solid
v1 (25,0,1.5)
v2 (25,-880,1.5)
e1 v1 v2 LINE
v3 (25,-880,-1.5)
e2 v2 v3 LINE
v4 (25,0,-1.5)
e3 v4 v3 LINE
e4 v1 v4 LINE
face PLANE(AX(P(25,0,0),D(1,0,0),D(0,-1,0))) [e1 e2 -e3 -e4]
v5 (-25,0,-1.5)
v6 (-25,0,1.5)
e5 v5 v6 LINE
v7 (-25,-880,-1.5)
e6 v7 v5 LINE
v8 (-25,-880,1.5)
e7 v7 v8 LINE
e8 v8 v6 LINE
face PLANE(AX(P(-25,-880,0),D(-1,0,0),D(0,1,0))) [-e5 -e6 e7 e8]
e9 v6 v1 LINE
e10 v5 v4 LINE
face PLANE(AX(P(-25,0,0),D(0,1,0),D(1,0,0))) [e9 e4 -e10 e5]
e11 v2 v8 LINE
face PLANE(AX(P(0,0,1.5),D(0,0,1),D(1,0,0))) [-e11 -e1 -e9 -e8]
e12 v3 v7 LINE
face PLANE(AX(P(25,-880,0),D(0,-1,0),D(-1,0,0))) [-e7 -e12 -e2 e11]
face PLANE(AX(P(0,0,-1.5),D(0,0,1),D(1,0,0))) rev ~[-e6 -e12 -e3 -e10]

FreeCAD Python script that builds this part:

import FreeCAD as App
import Part
import Sketcher
from FreeCAD import Vector
Q = App.Units.Quantity


def add_polygon(sketch, points):
    """Adds a closed chain of lines whose ends are joined by coincident constraints."""
    first, n = sketch.GeometryCount, len(points)
    for a, b in zip(points, points[1:] + points[:1]):
        sketch.addGeometry(Part.LineSegment(App.Vector(*a, 0), App.Vector(*b, 0)), False)
    for i in range(n):
        sketch.addConstraint(Sketcher.Constraint("Coincident", first + i, 2, first + (i + 1) % n, 1))

doc = App.newDocument("Part")
params = doc.addObject("Spreadsheet::Sheet", "Params")
for row, (alias, value) in enumerate([
    ("sketch1_width", "50 mm"),
    ("sketch1_height", "880 mm"),
    ("pad1_length", "3 mm"),
], start=1):
    params.set(f"A{row}", alias)
    params.set(f"B{row}", "=" + value)
    params.setAlias(f"B{row}", alias)

body = doc.addObject("PartDesign::Body", "Body")

# Sketch on XY plane
sketch1 = doc.addObject("Sketcher::SketchObject", "Sketch")
body.addObject(sketch1)
sketch1.AttachmentSupport = (doc.XY_Plane, [""])
sketch1.MapMode = "FlatFace"
add_polygon(sketch1, [(25, 0), (-25, 0), (-25, -880), (25, -880)])  # lines 0-3
sketch1.addConstraint(Sketcher.Constraint("Horizontal", 0))
sketch1.addConstraint(Sketcher.Constraint("Vertical", 1))
sketch1.addConstraint(Sketcher.Constraint("Horizontal", 2))
sketch1.addConstraint(Sketcher.Constraint("Vertical", 3))
sketch1.addConstraint(Sketcher.Constraint("Symmetric", 0, 2, 3, 2, -1, 1))
sketch1.addConstraint(Sketcher.Constraint("DistanceX", 0, 2, 0, 1, Q("50 mm")))
sketch1.addConstraint(Sketcher.Constraint("DistanceY", 1, 2, 1, 1, Q("880 mm")))
sketch1.setExpression("Constraints[9]", "Params.sketch1_width")
sketch1.setExpression("Constraints[10]", "Params.sketch1_height")
pad1 = doc.addObject("PartDesign::Pad", "Pad")
body.addObject(pad1)
pad1.Profile = sketch1
pad1.setExpression("Length", "Params.pad1_length")
pad1.Midplane = True

doc.recompute()
